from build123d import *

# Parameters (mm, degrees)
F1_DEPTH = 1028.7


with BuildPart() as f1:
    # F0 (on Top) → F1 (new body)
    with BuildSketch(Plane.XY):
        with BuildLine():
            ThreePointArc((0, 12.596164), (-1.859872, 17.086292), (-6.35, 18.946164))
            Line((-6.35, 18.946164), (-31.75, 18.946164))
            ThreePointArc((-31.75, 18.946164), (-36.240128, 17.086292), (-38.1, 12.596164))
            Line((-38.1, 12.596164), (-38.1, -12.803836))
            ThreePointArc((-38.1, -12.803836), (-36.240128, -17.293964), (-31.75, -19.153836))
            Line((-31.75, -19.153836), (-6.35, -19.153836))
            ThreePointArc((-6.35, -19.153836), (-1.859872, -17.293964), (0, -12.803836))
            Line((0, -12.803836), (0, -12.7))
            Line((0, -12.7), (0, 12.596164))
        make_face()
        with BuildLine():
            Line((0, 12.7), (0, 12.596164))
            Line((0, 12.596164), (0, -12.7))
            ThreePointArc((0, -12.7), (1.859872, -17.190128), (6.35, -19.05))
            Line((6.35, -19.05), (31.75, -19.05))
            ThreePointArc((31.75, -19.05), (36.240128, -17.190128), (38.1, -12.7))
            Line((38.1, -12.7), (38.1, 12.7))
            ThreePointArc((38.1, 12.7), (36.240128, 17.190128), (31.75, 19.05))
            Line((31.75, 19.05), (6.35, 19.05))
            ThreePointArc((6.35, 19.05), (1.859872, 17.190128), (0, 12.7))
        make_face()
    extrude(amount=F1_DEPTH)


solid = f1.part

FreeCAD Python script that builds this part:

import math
import FreeCAD as App
import Part
import Sketcher
from FreeCAD import Vector
Q = App.Units.Quantity

doc = App.newDocument("Part")
body = doc.addObject("PartDesign::Body", "Body")

sketch1 = body.newObject("Sketcher::SketchObject", "Sketch")
sketch1.AttachmentSupport = (doc.getObject("XY_Plane"), [""])
sketch1.MapMode = "FlatFace"
sketch1.addGeometry(Part.ArcOfCircle(Part.Circle(Vector(-6.35, 12.596164, 0), Vector(0, 0, 1), 6.35), math.radians(0.000002), math.radians(89.999998)), False)
sketch1.addGeometry(Part.LineSegment(Vector(-6.35, 18.946164, 0), Vector(-31.75, 18.946164, 0)), False)
sketch1.addGeometry(Part.ArcOfCircle(Part.Circle(Vector(-31.75, 12.596164, 0), Vector(0, 0, 1), 6.35), math.radians(90.000002), math.radians(179.999998)), False)
sketch1.addGeometry(Part.LineSegment(Vector(-38.1, 12.596164, 0), Vector(-38.1, -12.803836, 0)), False)
sketch1.addGeometry(Part.ArcOfCircle(Part.Circle(Vector(-31.75, -12.803836, 0), Vector(0, 0, 1), 6.35), math.radians(-179.999998), math.radians(-90.000002)), False)
sketch1.addGeometry(Part.LineSegment(Vector(-31.75, -19.153836, 0), Vector(-6.35, -19.153836, 0)), False)
sketch1.addGeometry(Part.ArcOfCircle(Part.Circle(Vector(-6.35, -12.803836, 0), Vector(0, 0, 1), 6.35), math.radians(-89.999998), math.radians(-0.000002)), False)
sketch1.addGeometry(Part.LineSegment(Vector(0, -12.803836, 0), Vector(0, -12.7, 0)), False)
sketch1.addGeometry(Part.ArcOfCircle(Part.Circle(Vector(6.35, -12.7, 0), Vector(0, 0, 1), 6.35), math.radians(-179.999998), math.radians(-90.000002)), False)
sketch1.addGeometry(Part.LineSegment(Vector(6.35, -19.05, 0), Vector(31.75, -19.05, 0)), False)
sketch1.addGeometry(Part.ArcOfCircle(Part.Circle(Vector(31.75, -12.7, 0), Vector(0, 0, 1), 6.35), math.radians(-89.999998), math.radians(-0.000002)), False)
sketch1.addGeometry(Part.LineSegment(Vector(38.1, -12.7, 0), Vector(38.1, 12.7, 0)), False)
sketch1.addGeometry(Part.ArcOfCircle(Part.Circle(Vector(31.75, 12.7, 0), Vector(0, 0, 1), 6.35), math.radians(0.000002), math.radians(89.999998)), False)
sketch1.addGeometry(Part.LineSegment(Vector(31.75, 19.05, 0), Vector(6.35, 19.05, 0)), False)
sketch1.addGeometry(Part.ArcOfCircle(Part.Circle(Vector(6.35, 12.7, 0), Vector(0, 0, 1), 6.35), math.radians(90.000002), math.radians(179.999998)), False)
sketch1.addGeometry(Part.LineSegment(Vector(0, 12.7, 0), Vector(0, 12.596164, 0)), False)
sketch1.addConstraint(Sketcher.Constraint("Tangent", 0, 2, 1, 1))
sketch1.addConstraint(Sketcher.Constraint("Tangent", 1, 2, 2, 1))
sketch1.addConstraint(Sketcher.Constraint("Tangent", 2, 2, 3, 1))
sketch1.addConstraint(Sketcher.Constraint("Tangent", 3, 2, 4, 1))
sketch1.addConstraint(Sketcher.Constraint("Tangent", 4, 2, 5, 1))
sketch1.addConstraint(Sketcher.Constraint("Tangent", 5, 2, 6, 1))
sketch1.addConstraint(Sketcher.Constraint("Tangent", 6, 2, 7, 1))
sketch1.addConstraint(Sketcher.Constraint("Tangent", 7, 2, 8, 1))
sketch1.addConstraint(Sketcher.Constraint("Tangent", 8, 2, 9, 1))
sketch1.addConstraint(Sketcher.Constraint("Tangent", 9, 2, 10, 1))
sketch1.addConstraint(Sketcher.Constraint("Tangent", 10, 2, 11, 1))
sketch1.addConstraint(Sketcher.Constraint("Tangent", 11, 2, 12, 1))
sketch1.addConstraint(Sketcher.Constraint("Tangent", 12, 2, 13, 1))
sketch1.addConstraint(Sketcher.Constraint("Tangent", 13, 2, 14, 1))
sketch1.addConstraint(Sketcher.Constraint("Tangent", 14, 2, 15, 1))
sketch1.addConstraint(Sketcher.Constraint("Tangent", 15, 2, 0, 1))
sketch1.addConstraint(Sketcher.Constraint("Horizontal", 1))
sketch1.addConstraint(Sketcher.Constraint("Vertical", 3))
sketch1.addConstraint(Sketcher.Constraint("Horizontal", 5))
sketch1.addConstraint(Sketcher.Constraint("Vertical", 7))
sketch1.addConstraint(Sketcher.Constraint("Horizontal", 9))
sketch1.addConstraint(Sketcher.Constraint("Vertical", 11))
sketch1.addConstraint(Sketcher.Constraint("Horizontal", 13))
sketch1.addConstraint(Sketcher.Constraint("Vertical", 15))
sketch1.addConstraint(Sketcher.Constraint("Equal", 0, 2))
sketch1.addConstraint(Sketcher.Constraint("Equal", 2, 4))
sketch1.addConstraint(Sketcher.Constraint("Equal", 4, 6))
sketch1.addConstraint(Sketcher.Constraint("Equal", 6, 8))
sketch1.addConstraint(Sketcher.Constraint("Equal", 8, 10))
sketch1.addConstraint(Sketcher.Constraint("Equal", 10, 12))
sketch1.addConstraint(Sketcher.Constraint("Equal", 12, 14))
sketch1.addConstraint(Sketcher.Constraint("Symmetric", 7, 2, 14, 2, -1, 1))
sketch1.addConstraint(Sketcher.Constraint("PointOnObject", 6, 2, -2))
sketch1.addConstraint(Sketcher.Constraint("Equal", 5, 9))
sketch1.addConstraint(Sketcher.Constraint("Equal", 13, 3))
sketch1.addConstraint(Sketcher.Constraint("Equal", 3, 11))
sketch1.addConstraint(Sketcher.Constraint("DistanceX", 1, 2, 1, 1, Q("1 in")))
sketch1.addConstraint(Sketcher.Constraint("Radius", 0, Q("0.25 in")))
sketch1.addConstraint(Sketcher.Constraint("DistanceY", 7, 1, 7, 2, Q("0.103836 mm")))
pad1 = body.newObject("PartDesign::Pad", "Pad")
pad1.Profile = sketch1
pad1.Length = Q("40.5 in")

doc.recompute()
